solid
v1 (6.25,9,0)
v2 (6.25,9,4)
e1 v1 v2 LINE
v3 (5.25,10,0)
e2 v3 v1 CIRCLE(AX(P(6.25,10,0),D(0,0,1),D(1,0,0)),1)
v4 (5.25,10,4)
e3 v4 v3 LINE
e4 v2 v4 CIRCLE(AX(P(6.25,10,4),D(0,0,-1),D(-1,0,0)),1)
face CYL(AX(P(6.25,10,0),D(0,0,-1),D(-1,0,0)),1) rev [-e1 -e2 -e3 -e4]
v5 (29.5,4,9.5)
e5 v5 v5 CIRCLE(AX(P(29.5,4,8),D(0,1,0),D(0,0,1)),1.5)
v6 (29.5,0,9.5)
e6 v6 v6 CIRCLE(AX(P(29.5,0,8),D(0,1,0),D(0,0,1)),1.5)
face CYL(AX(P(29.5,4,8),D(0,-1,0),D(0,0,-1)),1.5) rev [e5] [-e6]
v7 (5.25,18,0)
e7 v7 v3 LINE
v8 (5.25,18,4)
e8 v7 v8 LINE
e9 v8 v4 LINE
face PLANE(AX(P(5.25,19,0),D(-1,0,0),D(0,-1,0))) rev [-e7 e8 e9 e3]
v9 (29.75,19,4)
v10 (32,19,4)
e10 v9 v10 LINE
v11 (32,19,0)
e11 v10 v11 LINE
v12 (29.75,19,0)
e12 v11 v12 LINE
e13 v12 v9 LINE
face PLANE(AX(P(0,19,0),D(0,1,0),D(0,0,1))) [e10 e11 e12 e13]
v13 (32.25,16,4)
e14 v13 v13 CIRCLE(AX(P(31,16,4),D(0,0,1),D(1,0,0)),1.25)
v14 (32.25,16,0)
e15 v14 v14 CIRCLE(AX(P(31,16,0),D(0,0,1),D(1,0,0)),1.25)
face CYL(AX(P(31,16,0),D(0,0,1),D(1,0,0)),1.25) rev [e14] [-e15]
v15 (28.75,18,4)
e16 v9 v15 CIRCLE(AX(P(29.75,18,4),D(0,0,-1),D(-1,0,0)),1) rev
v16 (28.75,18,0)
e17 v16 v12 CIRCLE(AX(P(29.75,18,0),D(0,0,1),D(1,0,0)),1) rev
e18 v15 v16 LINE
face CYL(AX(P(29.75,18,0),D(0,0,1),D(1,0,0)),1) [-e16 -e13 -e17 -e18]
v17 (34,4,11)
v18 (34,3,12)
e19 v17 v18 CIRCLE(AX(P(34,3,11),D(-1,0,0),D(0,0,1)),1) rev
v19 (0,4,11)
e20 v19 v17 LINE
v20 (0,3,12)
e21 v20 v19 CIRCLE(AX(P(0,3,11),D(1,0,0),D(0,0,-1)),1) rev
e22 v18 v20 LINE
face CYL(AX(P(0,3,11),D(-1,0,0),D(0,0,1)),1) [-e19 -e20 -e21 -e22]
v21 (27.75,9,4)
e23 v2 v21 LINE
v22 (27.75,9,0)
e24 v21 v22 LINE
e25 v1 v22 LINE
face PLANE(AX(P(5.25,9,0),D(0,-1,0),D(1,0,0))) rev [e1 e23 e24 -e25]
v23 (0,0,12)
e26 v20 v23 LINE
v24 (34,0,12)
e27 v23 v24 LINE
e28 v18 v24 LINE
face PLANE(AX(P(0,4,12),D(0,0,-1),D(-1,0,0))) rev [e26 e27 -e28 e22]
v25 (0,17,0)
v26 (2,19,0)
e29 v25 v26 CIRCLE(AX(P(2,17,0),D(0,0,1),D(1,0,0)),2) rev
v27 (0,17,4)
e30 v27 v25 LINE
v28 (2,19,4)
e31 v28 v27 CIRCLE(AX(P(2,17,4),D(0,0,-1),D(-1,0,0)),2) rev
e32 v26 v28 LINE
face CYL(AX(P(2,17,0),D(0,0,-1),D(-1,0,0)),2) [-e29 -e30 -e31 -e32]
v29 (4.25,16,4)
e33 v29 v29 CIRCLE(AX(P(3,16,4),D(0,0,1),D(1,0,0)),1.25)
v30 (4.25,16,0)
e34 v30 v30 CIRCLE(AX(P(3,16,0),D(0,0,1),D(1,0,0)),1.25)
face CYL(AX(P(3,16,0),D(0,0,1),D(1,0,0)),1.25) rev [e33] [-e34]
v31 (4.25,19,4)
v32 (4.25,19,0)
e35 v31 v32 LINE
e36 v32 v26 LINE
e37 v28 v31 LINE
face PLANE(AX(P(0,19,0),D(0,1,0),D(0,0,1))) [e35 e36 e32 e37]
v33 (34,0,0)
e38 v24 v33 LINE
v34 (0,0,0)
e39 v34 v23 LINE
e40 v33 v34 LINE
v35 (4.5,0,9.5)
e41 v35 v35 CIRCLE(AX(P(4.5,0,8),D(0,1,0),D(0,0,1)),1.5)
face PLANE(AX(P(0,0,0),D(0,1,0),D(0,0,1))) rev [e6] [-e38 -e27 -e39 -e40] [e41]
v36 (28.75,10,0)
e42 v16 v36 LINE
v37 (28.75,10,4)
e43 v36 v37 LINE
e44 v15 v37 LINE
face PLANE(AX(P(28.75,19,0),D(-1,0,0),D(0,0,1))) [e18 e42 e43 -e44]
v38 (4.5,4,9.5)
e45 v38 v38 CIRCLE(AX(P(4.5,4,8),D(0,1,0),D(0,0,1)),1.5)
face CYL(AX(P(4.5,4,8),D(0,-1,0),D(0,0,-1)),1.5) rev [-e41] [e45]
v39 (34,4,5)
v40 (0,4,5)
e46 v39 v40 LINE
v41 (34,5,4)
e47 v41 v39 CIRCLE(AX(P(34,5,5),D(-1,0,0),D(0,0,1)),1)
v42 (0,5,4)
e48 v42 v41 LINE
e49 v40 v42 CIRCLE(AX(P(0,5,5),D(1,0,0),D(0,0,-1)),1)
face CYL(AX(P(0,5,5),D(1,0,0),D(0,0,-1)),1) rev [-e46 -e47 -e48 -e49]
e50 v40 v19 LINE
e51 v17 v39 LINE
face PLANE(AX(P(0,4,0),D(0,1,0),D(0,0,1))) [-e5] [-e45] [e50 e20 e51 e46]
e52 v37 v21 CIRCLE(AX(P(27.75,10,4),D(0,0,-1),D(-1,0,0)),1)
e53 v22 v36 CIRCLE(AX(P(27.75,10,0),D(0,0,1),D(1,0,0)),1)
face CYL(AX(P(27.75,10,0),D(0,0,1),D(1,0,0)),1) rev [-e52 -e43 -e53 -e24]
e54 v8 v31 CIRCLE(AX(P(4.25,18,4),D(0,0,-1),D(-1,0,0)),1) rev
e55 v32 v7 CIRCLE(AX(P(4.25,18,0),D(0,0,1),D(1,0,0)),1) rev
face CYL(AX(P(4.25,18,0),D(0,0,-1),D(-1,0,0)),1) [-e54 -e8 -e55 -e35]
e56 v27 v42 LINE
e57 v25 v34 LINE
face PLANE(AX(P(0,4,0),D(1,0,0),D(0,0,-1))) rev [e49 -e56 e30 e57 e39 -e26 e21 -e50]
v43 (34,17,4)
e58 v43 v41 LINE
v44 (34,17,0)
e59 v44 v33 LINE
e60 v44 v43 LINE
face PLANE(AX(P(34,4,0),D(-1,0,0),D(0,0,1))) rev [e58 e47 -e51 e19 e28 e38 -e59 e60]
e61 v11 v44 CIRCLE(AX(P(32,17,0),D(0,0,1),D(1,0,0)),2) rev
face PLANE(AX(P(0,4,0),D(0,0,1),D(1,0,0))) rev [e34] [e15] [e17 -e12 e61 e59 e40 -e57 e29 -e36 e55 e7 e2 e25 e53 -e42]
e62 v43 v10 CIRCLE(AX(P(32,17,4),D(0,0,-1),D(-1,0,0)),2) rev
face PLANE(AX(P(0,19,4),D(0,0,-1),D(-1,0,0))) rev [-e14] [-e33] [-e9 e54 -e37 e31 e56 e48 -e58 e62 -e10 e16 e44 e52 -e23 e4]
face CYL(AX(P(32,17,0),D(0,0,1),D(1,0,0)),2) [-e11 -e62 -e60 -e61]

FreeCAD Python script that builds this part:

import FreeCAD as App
import Part
import Sketcher

V = App.Vector
Q = App.Units.Quantity


def edges_at(feature, points):
    """Names of the edges that pass closest to the given points."""
    edges = feature.Shape.Edges
    near = lambda p: min(range(len(edges)), key=lambda i: edges[i].distToShape(Part.Vertex(*p))[0])
    return sorted({f"Edge{near(p) + 1}" for p in points})

doc = App.newDocument("Part")
params = doc.addObject("Spreadsheet::Sheet", "Params")
for row, (alias, value) in enumerate([
    ("sketch1_diameter", "3 mm"),
    ("sketch1_width", "34 mm"),
    ("sketch1_height", "12 mm"),
    ("pad1_length", "4 mm"),
    ("sketch2_width", "34 mm"),
    ("sketch2_height", "4 mm"),
    ("pad2_length", "15 mm"),
    ("sketch3_diameter", "2.5 mm"),
    ("sketch3_height", "10 mm"),
    ("sketch3_width", "23.5 mm"),
    ("fillet_radius", "1 mm"),
    ("fillet2_radius", "2 mm"),
    ("fillet3_radius", "2 mm"),
    ("fillet4_radius", "1 mm"),
    ("fillet5_radius", "1 mm"),
    ("fillet6_radius", "1 mm"),
    ("fillet7_radius", "1 mm"),
], start=1):
    params.set(f"A{row}", alias)
    params.set(f"B{row}", "=" + value)
    params.setAlias(f"B{row}", alias)

body = doc.addObject("PartDesign::Body", "Body")

# Sketch on XZ plane
sketch1 = body.newObject("Sketcher::SketchObject", "Sketch")
sketch1.AttachmentSupport = (doc.getObject("XZ_Plane"), [""])
sketch1.MapMode = "FlatFace"
sketch1.addGeometry([
    Part.LineSegment(V(0, 0, 0), V(0, 12, 0)),  # 0
    Part.LineSegment(V(0, 12, 0), V(34, 12, 0)),  # 1
    Part.LineSegment(V(34, 12, 0), V(34, 0, 0)),  # 2
    Part.LineSegment(V(34, 0, 0), V(0, 0, 0)),  # 3
    Part.Circle(V(4.5, 8, 0), V(0, 0, 1), 1.5),  # 4
    Part.Circle(V(29.5, 8, 0), V(0, 0, 1), 1.5),  # 5
], False)
sketch1.addConstraint([
    Sketcher.Constraint("Coincident", 0, 2, 1, 1),
    Sketcher.Constraint("Coincident", 1, 2, 2, 1),
    Sketcher.Constraint("Coincident", 2, 2, 3, 1),
    Sketcher.Constraint("Coincident", 3, 2, 0, 1),
    Sketcher.Constraint("Vertical", 0),
    Sketcher.Constraint("Horizontal", 1),
    Sketcher.Constraint("Vertical", 2),
    Sketcher.Constraint("Horizontal", 3),
    Sketcher.Constraint("Coincident", 3, 2, -1, 1),
    Sketcher.Constraint("Equal", 4, 5),
    Sketcher.Constraint("Horizontal", 4, 3, 5, 3),
    Sketcher.Constraint("Diameter", 4, Q("3 mm")),
    Sketcher.Constraint("DistanceX", 1, 1, 1, 2, Q("34 mm")),
    Sketcher.Constraint("DistanceY", 0, 1, 0, 2, Q("12 mm")),
    Sketcher.Constraint("DistanceY", -1, 1, 4, 3, Q("8 mm")),
    Sketcher.Constraint("DistanceX", 4, 3, 5, 3, Q("25 mm")),
    Sketcher.Constraint("DistanceX", -1, 1, 4, 3, Q("4.5 mm")),
])
sketch1.setExpression("Constraints[11]", "Params.sketch1_diameter")
sketch1.setExpression("Constraints[12]", "Params.sketch1_width")
sketch1.setExpression("Constraints[13]", "Params.sketch1_height")
pad1 = body.newObject("PartDesign::Pad", "Pad")
pad1.Profile = sketch1
pad1.setExpression("Length", "Params.pad1_length")
pad1.Reversed = True

# Sketch on XZ plane
sketch2 = body.newObject("Sketcher::SketchObject", "Sketch001")
sketch2.AttachmentSupport = (doc.getObject("XZ_Plane"), [""])
sketch2.MapMode = "FlatFace"
sketch2.AttachmentOffset = App.Placement(V(0, 0, -4), App.Rotation())
sketch2.addGeometry([
    Part.LineSegment(V(0, 0, 0), V(0, 4, 0)),
    Part.LineSegment(V(0, 4, 0), V(34, 4, 0)),
    Part.LineSegment(V(34, 4, 0), V(34, 0, 0)),
    Part.LineSegment(V(34, 0, 0), V(0, 0, 0)),
], False)
sketch2.addConstraint([
    Sketcher.Constraint("Coincident", 0, 2, 1, 1),
    Sketcher.Constraint("Coincident", 1, 2, 2, 1),
    Sketcher.Constraint("Coincident", 2, 2, 3, 1),
    Sketcher.Constraint("Coincident", 3, 2, 0, 1),
    Sketcher.Constraint("Vertical", 0),
    Sketcher.Constraint("Horizontal", 1),
    Sketcher.Constraint("Vertical", 2),
    Sketcher.Constraint("Horizontal", 3),
    Sketcher.Constraint("Coincident", 3, 2, -1, 1),
    Sketcher.Constraint("DistanceX", 1, 1, 1, 2, Q("34 mm")),
    Sketcher.Constraint("DistanceY", 0, 1, 0, 2, Q("4 mm")),
])
sketch2.setExpression("Constraints[9]", "Params.sketch2_width")
sketch2.setExpression("Constraints[10]", "Params.sketch2_height")
pad2 = body.newObject("PartDesign::Pad", "Pad001")
pad2.Profile = sketch2
pad2.setExpression("Length", "Params.pad2_length")
pad2.Reversed = True

# Sketch on XY plane
sketch3 = body.newObject("Sketcher::SketchObject", "Sketch002")
sketch3.AttachmentSupport = (doc.getObject("XY_Plane"), [""])
sketch3.MapMode = "FlatFace"
sketch3.AttachmentOffset = App.Placement(V(0, 0, 4), App.Rotation())
sketch3.addGeometry([
    Part.Circle(V(3, 16, 0), V(0, 0, 1), 1.2),  # 0
    Part.Circle(V(31, 16, 0), V(0, 0, 1), 1.2),  # 1
    Part.LineSegment(V(5.2, 19, 0), V(5.2, 9, 0)),  # 2
    Part.LineSegment(V(5.2, 9, 0), V(28.8, 9, 0)),  # 3
    Part.LineSegment(V(28.8, 9, 0), V(28.8, 19, 0)),  # 4
    Part.LineSegment(V(28.8, 19, 0), V(5.2, 19, 0)),  # 5
], False)
sketch3.addConstraint([
    Sketcher.Constraint("Coincident", 2, 2, 3, 1),
    Sketcher.Constraint("Coincident", 3, 2, 4, 1),
    Sketcher.Constraint("Coincident", 4, 2, 5, 1),
    Sketcher.Constraint("Coincident", 5, 2, 2, 1),
    Sketcher.Constraint("Vertical", 2),
    Sketcher.Constraint("Horizontal", 3),
    Sketcher.Constraint("Vertical", 4),
    Sketcher.Constraint("Horizontal", 5),
    Sketcher.Constraint("Equal", 0, 1),
    Sketcher.Constraint("Horizontal", 0, 3, 1, 3),
    Sketcher.Constraint("Diameter", 0, Q("2.5 mm")),
    Sketcher.Constraint("DistanceY", 2, 2, 2, 1, Q("10 mm")),
    Sketcher.Constraint("DistanceX", 3, 1, 3, 2, Q("23.5 mm")),
    Sketcher.Constraint("DistanceX", -1, 1, 0, 3, Q("3 mm")),
    Sketcher.Constraint("DistanceY", -1, 1, 0, 3, Q("16 mm")),
    Sketcher.Constraint("DistanceX", -1, 1, 1, 3, Q("31 mm")),
    Sketcher.Constraint("DistanceY", -1, 1, 2, 2, Q("9 mm")),
    Sketcher.Constraint("DistanceX", -1, 1, 2, 2, Q("5.25 mm")),
])
sketch3.setExpression("Constraints[10]", "Params.sketch3_diameter")
sketch3.setExpression("Constraints[11]", "Params.sketch3_height")
sketch3.setExpression("Constraints[12]", "Params.sketch3_width")
pocket1 = body.newObject("PartDesign::Pocket", "Pocket")
pocket1.Profile = sketch3
pocket1.Type = "ThroughAll"
doc.recompute()

fillet = body.newObject("PartDesign::Fillet", "Fillet")
fillet.Base = (pocket1, edges_at(pocket1, [(17, 4, 12)]))
fillet.setExpression("Radius", "Params.fillet_radius")
doc.recompute()

fillet2 = body.newObject("PartDesign::Fillet", "Fillet001")
fillet2.Base = (fillet, edges_at(fillet, [(0, 19, 2)]))
fillet2.setExpression("Radius", "Params.fillet2_radius")
doc.recompute()

fillet3 = body.newObject("PartDesign::Fillet", "Fillet002")
fillet3.Base = (fillet2, edges_at(fillet2, [(34, 19, 2)]))
fillet3.setExpression("Radius", "Params.fillet3_radius")
doc.recompute()

fillet4 = body.newObject("PartDesign::Fillet", "Fillet003")
fillet4.Base = (fillet3, edges_at(fillet3, [(5.25, 9, 2)]))
fillet4.setExpression("Radius", "Params.fillet4_radius")
doc.recompute()

fillet5 = body.newObject("PartDesign::Fillet", "Fillet004")
fillet5.Base = (fillet4, edges_at(fillet4, [(28.75, 9, 2)]))
fillet5.setExpression("Radius", "Params.fillet5_radius")
doc.recompute()

fillet6 = body.newObject("PartDesign::Fillet", "Fillet005")
fillet6.Base = (fillet5, edges_at(fillet5, [(5.25, 19, 2), (28.75, 19, 2)]))
fillet6.setExpression("Radius", "Params.fillet6_radius")
doc.recompute()

fillet7 = body.newObject("PartDesign::Fillet", "Fillet006")
fillet7.Base = (fillet6, edges_at(fillet6, [(17, 4, 4)]))
fillet7.setExpression("Radius", "Params.fillet7_radius")

doc.recompute()
